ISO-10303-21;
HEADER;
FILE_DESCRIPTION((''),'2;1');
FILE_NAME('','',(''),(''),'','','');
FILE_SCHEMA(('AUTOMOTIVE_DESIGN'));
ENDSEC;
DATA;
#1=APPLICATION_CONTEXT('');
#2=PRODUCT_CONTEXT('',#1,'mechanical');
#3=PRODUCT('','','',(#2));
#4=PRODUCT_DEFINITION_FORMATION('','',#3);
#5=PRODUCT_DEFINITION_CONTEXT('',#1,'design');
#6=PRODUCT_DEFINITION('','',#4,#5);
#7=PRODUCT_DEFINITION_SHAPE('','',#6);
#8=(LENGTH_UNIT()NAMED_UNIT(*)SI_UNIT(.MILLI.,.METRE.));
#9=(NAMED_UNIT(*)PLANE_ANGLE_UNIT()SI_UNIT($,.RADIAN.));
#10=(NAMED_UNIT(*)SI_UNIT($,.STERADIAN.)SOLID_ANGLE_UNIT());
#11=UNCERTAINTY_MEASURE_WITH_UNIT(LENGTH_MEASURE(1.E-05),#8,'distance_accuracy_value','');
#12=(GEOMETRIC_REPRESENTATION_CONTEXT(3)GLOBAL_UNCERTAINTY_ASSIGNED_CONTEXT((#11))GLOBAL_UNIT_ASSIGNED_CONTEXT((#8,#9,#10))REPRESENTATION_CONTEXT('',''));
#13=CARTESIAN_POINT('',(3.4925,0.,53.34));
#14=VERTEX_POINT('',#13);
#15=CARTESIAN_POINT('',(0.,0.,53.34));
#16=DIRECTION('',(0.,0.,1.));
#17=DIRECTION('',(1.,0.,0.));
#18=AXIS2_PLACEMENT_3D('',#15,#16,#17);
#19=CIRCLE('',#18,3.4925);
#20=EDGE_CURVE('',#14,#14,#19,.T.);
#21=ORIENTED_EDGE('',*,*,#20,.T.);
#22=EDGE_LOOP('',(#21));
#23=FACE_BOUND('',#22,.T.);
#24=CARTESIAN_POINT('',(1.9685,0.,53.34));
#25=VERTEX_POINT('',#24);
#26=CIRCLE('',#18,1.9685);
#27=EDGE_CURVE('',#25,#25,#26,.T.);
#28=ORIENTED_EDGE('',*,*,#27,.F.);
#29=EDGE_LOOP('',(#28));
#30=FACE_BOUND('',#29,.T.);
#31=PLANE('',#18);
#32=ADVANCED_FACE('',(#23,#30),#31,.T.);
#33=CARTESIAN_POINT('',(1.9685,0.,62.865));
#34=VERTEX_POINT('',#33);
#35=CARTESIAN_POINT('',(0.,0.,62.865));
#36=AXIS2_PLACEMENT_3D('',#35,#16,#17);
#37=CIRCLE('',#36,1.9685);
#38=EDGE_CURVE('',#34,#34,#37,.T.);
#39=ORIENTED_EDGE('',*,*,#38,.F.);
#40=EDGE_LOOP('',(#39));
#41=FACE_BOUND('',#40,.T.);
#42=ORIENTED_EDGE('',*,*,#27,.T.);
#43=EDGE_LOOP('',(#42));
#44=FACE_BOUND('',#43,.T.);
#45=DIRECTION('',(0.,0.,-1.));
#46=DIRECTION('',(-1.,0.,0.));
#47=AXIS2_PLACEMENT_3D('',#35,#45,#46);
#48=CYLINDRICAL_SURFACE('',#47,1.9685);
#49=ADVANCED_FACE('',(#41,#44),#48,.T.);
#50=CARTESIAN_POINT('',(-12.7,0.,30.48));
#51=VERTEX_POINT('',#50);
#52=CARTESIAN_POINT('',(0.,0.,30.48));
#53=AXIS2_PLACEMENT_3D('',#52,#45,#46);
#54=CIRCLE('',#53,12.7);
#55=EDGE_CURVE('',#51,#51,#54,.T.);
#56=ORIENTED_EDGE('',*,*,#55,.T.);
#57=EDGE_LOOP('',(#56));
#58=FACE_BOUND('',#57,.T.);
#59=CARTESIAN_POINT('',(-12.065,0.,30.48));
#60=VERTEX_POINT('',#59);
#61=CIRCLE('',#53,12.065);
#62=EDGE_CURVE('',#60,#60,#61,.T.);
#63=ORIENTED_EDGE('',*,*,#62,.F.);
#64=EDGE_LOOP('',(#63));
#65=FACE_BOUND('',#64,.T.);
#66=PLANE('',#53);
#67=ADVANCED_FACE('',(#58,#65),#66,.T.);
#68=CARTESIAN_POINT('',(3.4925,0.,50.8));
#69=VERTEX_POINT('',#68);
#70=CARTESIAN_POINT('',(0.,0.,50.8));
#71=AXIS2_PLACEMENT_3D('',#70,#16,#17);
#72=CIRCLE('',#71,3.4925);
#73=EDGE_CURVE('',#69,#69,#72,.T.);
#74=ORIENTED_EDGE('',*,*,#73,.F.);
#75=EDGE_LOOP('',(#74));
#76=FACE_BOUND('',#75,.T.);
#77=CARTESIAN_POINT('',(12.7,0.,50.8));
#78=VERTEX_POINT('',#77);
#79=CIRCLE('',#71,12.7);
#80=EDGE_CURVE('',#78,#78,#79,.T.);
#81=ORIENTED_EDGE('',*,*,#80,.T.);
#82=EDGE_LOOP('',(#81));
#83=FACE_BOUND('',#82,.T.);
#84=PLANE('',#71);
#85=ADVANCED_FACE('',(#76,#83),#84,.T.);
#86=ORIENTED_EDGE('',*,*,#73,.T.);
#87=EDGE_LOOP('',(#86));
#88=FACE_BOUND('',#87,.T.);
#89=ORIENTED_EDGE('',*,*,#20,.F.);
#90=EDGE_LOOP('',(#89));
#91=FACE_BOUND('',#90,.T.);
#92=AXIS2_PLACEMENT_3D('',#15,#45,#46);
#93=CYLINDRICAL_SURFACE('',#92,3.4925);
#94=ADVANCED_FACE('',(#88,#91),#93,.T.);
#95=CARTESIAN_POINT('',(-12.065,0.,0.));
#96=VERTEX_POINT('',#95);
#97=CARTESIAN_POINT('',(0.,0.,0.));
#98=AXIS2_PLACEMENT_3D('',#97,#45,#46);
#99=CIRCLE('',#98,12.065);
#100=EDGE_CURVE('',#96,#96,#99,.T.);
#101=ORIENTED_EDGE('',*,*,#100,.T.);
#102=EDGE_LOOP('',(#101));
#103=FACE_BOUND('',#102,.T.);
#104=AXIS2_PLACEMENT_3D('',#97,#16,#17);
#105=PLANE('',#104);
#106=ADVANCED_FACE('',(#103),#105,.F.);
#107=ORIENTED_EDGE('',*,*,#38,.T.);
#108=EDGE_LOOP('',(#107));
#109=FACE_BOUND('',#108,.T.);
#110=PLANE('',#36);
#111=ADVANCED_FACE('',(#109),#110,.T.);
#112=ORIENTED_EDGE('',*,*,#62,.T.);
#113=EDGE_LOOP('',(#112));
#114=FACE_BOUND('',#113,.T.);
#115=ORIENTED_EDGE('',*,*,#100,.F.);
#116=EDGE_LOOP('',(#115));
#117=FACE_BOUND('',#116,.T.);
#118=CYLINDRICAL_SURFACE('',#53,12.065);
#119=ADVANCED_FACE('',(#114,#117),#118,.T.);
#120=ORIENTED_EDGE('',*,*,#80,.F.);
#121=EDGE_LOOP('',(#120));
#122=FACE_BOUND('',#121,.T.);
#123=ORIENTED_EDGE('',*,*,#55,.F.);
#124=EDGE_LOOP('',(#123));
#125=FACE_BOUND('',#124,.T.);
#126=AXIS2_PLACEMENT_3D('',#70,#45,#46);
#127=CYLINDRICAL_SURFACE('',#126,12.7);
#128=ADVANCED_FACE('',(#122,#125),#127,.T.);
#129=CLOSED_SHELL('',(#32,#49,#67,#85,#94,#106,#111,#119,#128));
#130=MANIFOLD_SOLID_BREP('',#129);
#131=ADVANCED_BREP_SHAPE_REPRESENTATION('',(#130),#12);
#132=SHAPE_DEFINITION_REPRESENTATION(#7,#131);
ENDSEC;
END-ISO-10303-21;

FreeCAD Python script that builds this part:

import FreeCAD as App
import Part
import Sketcher
Q = App.Units.Quantity


def add_polygon(sketch, points):
    """Adds a closed chain of lines whose ends are joined by coincident constraints."""
    first, n = sketch.GeometryCount, len(points)
    for a, b in zip(points, points[1:] + points[:1]):
        sketch.addGeometry(Part.LineSegment(App.Vector(*a, 0), App.Vector(*b, 0)), False)
    for i in range(n):
        sketch.addConstraint(Sketcher.Constraint("Coincident", first + i, 2, first + (i + 1) % n, 1))

doc = App.newDocument("Part")
body = doc.addObject("PartDesign::Body", "Body")

sketch1 = body.newObject("Sketcher::SketchObject", "Sketch")
sketch1.AttachmentSupport = (doc.getObject("XY_Plane"), [""])
sketch1.MapMode = "FlatFace"
sketch1.addGeometry(Part.Circle(App.Vector(0, 0, 0), App.Vector(0, 0, 1), 13), False)
sketch1.addConstraint([
    Sketcher.Constraint("Coincident", 0, 3, -1, 1),
    Sketcher.Constraint("Diameter", 0, Q("1 in")),
])
pad1 = body.newObject("PartDesign::Pad", "Pad")
pad1.Profile = sketch1
pad1.Length = Q("2 in")

sketch2 = body.newObject("Sketcher::SketchObject", "Sketch001")
sketch2.AttachmentSupport = (doc.getObject("XY_Plane"), [""])
sketch2.MapMode = "FlatFace"
sketch2.AttachmentOffset = App.Placement(App.Vector(0, 0, 2 * 25.4), App.Rotation())
sketch2.addGeometry(Part.Circle(App.Vector(0, 0, 0), App.Vector(0, 0, 1), 3.5), False)
sketch2.addConstraint([
    Sketcher.Constraint("Coincident", 0, 3, -1, 1),
    Sketcher.Constraint("Diameter", 0, Q("0.275 in")),
])
pad2 = body.newObject("PartDesign::Pad", "Pad001")
pad2.Profile = sketch2
pad2.Length = Q("0.1 in")

sketch3 = body.newObject("Sketcher::SketchObject", "Sketch002")
sketch3.AttachmentSupport = (doc.getObject("XY_Plane"), [""])
sketch3.MapMode = "FlatFace"
sketch3.AttachmentOffset = App.Placement(App.Vector(0, 0, 2.1 * 25.4), App.Rotation())
sketch3.addGeometry(Part.Circle(App.Vector(0, 0, 0), App.Vector(0, 0, 1), 2), False)
sketch3.addConstraint([
    Sketcher.Constraint("Coincident", 0, 3, -1, 1),
    Sketcher.Constraint("Diameter", 0, Q("0.155 in")),
])
pad3 = body.newObject("PartDesign::Pad", "Pad002")
pad3.Profile = sketch3
pad3.Length = Q("0.375 in")

sketch4 = body.newObject("Sketcher::SketchObject", "Sketch003")
sketch4.AttachmentSupport = (doc.getObject("XY_Plane"), [""])
sketch4.MapMode = "FlatFace"
add_polygon(sketch4, [(21, 21), (21, -21), (-21, -21), (-21, 21)])
sketch4.addGeometry(Part.Circle(App.Vector(0, 0, 0), App.Vector(0, 0, 1), 12), False)
sketch4.addConstraint([
    Sketcher.Constraint("Vertical", 0),
    Sketcher.Constraint("Horizontal", 1),
    Sketcher.Constraint("Vertical", 2),
    Sketcher.Constraint("Horizontal", 3),
    Sketcher.Constraint("Coincident", 4, 3, -1, 1),
    Sketcher.Constraint("Symmetric", 0, 2, 2, 2, -1, 1),
    Sketcher.Constraint("Equal", 3, 0),
    Sketcher.Constraint("Diameter", 4, Q("0.95 in")),
    Sketcher.Constraint("DistanceX", 1, 2, 1, 1, 41.88),
])
pocket1 = body.newObject("PartDesign::Pocket", "Pocket")
pocket1.Profile = sketch4
pocket1.Length = Q("1.2 in")
pocket1.Reversed = True

doc.recompute()
